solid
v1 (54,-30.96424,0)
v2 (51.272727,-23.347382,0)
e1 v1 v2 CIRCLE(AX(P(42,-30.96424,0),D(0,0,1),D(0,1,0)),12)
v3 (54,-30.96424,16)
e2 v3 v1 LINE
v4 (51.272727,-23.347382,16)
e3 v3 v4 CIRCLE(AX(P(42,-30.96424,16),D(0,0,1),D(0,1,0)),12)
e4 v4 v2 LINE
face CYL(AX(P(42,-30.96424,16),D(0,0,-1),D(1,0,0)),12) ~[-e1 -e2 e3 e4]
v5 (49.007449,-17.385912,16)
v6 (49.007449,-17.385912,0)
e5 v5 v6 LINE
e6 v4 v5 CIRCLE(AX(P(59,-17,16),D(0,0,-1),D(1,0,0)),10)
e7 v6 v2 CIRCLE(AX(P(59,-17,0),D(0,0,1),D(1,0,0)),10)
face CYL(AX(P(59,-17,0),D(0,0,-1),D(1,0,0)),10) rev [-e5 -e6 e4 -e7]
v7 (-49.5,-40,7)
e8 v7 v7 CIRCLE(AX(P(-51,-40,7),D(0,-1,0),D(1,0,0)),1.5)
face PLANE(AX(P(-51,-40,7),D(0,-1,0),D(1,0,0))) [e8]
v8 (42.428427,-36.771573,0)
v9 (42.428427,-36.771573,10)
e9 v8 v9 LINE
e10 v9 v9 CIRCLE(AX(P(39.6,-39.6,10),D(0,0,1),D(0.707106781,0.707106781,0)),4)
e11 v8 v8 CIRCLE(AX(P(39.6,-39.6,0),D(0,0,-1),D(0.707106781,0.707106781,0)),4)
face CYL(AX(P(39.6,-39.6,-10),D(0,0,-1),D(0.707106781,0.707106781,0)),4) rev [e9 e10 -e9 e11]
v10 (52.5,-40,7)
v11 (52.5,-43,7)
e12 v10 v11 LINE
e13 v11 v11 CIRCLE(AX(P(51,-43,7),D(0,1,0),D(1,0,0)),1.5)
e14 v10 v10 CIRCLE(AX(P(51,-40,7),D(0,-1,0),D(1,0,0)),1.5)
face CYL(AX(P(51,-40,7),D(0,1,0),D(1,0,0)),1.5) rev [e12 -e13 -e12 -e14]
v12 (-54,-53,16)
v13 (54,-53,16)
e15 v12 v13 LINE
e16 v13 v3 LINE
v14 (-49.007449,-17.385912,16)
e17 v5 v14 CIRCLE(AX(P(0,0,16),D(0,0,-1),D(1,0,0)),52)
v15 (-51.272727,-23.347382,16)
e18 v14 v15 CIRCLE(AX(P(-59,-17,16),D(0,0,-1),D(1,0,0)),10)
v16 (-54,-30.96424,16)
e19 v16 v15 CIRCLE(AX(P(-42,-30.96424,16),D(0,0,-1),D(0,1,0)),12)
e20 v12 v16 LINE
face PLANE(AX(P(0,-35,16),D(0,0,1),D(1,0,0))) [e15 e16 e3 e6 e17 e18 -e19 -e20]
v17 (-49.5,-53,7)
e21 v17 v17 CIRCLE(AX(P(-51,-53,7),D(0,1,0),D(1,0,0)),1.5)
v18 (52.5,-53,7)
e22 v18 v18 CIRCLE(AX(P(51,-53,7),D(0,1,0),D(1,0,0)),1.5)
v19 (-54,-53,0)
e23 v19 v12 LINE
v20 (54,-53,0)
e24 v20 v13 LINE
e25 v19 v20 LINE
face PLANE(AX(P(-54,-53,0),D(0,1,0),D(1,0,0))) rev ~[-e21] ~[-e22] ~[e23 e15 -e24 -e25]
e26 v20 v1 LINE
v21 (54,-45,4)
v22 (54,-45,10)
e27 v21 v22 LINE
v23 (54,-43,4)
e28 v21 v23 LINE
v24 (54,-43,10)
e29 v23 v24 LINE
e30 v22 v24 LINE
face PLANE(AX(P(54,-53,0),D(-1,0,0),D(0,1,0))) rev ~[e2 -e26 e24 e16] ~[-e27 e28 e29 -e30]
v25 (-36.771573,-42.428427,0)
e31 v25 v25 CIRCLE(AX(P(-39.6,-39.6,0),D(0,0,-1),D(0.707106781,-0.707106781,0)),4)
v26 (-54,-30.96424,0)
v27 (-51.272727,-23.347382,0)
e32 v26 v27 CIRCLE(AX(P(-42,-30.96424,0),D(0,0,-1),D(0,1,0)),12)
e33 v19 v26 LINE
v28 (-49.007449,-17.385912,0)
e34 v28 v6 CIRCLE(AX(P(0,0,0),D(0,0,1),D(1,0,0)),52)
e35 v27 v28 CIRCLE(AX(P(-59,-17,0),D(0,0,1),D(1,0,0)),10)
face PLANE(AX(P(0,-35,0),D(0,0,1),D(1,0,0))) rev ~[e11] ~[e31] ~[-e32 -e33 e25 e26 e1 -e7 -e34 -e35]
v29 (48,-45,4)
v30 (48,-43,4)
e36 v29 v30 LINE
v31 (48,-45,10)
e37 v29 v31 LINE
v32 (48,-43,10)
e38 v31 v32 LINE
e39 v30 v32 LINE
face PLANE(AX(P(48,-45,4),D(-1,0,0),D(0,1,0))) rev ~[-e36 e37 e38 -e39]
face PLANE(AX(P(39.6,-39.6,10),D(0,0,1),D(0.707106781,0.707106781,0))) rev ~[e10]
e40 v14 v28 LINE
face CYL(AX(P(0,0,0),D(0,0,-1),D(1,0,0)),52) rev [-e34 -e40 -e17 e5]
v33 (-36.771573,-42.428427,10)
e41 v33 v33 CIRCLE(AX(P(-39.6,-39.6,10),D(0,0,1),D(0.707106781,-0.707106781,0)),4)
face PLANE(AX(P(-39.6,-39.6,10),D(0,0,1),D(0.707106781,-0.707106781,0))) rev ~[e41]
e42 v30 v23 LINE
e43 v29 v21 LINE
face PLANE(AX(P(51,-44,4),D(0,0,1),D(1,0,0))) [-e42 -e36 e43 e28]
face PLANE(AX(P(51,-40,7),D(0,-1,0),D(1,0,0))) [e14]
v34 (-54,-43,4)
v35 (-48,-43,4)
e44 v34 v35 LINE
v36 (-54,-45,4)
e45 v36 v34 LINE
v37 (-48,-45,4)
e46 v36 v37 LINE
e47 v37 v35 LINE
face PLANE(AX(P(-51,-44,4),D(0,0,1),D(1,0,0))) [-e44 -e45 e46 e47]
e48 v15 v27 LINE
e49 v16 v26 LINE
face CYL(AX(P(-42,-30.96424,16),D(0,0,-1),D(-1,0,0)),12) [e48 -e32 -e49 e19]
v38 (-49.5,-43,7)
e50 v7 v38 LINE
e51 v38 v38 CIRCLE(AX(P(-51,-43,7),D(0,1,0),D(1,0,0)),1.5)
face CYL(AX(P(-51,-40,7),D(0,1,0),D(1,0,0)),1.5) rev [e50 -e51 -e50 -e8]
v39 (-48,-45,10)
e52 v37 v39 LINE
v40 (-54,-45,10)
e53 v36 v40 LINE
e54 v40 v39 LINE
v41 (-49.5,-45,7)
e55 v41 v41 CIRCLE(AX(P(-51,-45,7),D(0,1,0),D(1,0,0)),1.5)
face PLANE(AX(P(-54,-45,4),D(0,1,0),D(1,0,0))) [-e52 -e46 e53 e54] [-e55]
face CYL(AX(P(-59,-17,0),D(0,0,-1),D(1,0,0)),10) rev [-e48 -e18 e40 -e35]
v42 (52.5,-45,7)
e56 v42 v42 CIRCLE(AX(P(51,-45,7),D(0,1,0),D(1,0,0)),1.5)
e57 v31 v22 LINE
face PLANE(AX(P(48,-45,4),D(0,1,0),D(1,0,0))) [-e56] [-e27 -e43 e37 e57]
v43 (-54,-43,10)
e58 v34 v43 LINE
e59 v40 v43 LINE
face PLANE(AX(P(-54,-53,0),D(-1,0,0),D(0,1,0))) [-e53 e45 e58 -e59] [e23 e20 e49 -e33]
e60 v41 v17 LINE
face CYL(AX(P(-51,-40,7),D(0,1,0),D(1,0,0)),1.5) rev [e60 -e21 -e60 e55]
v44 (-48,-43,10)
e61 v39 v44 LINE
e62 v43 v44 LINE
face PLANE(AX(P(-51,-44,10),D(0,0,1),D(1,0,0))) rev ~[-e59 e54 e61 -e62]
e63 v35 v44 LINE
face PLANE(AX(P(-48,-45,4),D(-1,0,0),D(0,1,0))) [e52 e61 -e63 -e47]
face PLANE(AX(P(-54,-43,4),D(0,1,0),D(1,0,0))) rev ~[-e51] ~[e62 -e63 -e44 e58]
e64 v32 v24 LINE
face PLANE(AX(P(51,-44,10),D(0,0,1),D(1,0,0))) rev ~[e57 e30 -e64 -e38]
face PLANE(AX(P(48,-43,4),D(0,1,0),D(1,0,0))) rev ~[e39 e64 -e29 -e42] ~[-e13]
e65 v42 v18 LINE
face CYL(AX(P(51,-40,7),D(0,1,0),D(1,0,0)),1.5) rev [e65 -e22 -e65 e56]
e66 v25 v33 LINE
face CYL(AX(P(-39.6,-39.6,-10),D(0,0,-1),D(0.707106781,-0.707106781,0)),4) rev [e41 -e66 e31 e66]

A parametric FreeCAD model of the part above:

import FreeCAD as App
import Part
import Sketcher
from FreeCAD import Vector


def edges_at(feature, points):
    """Names of the edges that pass closest to the given points."""
    edges = feature.Shape.Edges
    near = lambda p: min(range(len(edges)), key=lambda i: edges[i].distToShape(Part.Vertex(*p))[0])
    return sorted({f"Edge{near(p) + 1}" for p in points})


def add_polygon(sketch, points):
    """Adds a closed chain of lines whose ends are joined by coincident constraints."""
    first, n = sketch.GeometryCount, len(points)
    for a, b in zip(points, points[1:] + points[:1]):
        sketch.addGeometry(Part.LineSegment(App.Vector(*a, 0), App.Vector(*b, 0)), False)
    for i in range(n):
        sketch.addConstraint(Sketcher.Constraint("Coincident", first + i, 2, first + (i + 1) % n, 1))

doc = App.newDocument("Part")
body = doc.addObject("PartDesign::Body", "Body")

# Sketch on XZ plane
sketch1 = doc.addObject("Sketcher::SketchObject", "Sketch")
body.addObject(sketch1)
sketch1.AttachmentSupport = (doc.XZ_Plane, [""])
sketch1.MapMode = "FlatFace"
sketch1.AttachmentOffset = App.Placement(Vector(0, 0, 40), App.Rotation())
sketch1.addGeometry(Part.Circle(Vector(20, -5, 0), Vector(0, 0, 1), 1.5), False)
sketch1.addConstraint(Sketcher.Constraint("Diameter", 0, 3.0))
sketch1.addConstraint(Sketcher.Constraint("DistanceX", -1, 1, 0, 3, 20.0))
sketch1.addConstraint(Sketcher.Constraint("DistanceY", 0, 3, -1, 1, 5.0))
pad1 = doc.addObject("PartDesign::Pad", "Pad")
body.addObject(pad1)
pad1.Profile = sketch1
pad1.Length = 20
body2 = doc.addObject("PartDesign::Body", "Body001")

# Sketch on XZ plane
sketch2 = doc.addObject("Sketcher::SketchObject", "Sketch001")
body2.addObject(sketch2)
sketch2.AttachmentSupport = (doc.getObject("XZ_Plane001"), [""])
sketch2.MapMode = "FlatFace"
sketch2.AttachmentOffset = App.Placement(Vector(0, 0, 40), App.Rotation())
sketch2.addGeometry(Part.Circle(Vector(51, 7, 0), Vector(0, 0, 1), 1.5), False)
sketch2.addConstraint(Sketcher.Constraint("Diameter", 0, 3.0))
sketch2.addConstraint(Sketcher.Constraint("DistanceX", -1, 1, 0, 3, 51.0))
sketch2.addConstraint(Sketcher.Constraint("DistanceY", -1, 1, 0, 3, 7.0))
pad2 = doc.addObject("PartDesign::Pad", "Pad001")
body2.addObject(pad2)
pad2.Profile = sketch2
pad2.Length = 20
body3 = doc.addObject("PartDesign::Body", "Body002")

# Sketch on XZ plane
sketch3 = doc.addObject("Sketcher::SketchObject", "Sketch002")
body3.addObject(sketch3)
sketch3.AttachmentSupport = (doc.getObject("XZ_Plane002"), [""])
sketch3.MapMode = "FlatFace"
sketch3.AttachmentOffset = App.Placement(Vector(0, 0, 40), App.Rotation())
sketch3.addGeometry(Part.Circle(Vector(-51, 7, 0), Vector(0, 0, 1), 1.5), False)
sketch3.addConstraint(Sketcher.Constraint("Diameter", 0, 3.0))
sketch3.addConstraint(Sketcher.Constraint("DistanceX", 0, 3, -1, 1, 51.0))
sketch3.addConstraint(Sketcher.Constraint("DistanceY", -1, 1, 0, 3, 7.0))
pad3 = doc.addObject("PartDesign::Pad", "Pad002")
body3.addObject(pad3)
pad3.Profile = sketch3
pad3.Length = 20
body4 = doc.addObject("PartDesign::Body", "Body003")
body4.AllowCompound = True

# Sketch on XZ plane
sketch4 = doc.addObject("Sketcher::SketchObject", "Sketch003")
body4.addObject(sketch4)
sketch4.AttachmentSupport = (doc.getObject("XZ_Plane003"), [""])
sketch4.MapMode = "FlatFace"
sketch4.AttachmentOffset = App.Placement(Vector(0, 0, 40), App.Rotation())
sketch4.addGeometry(Part.Circle(Vector(-20, -5, 0), Vector(0, 0, 1), 1.5), False)
sketch4.addConstraint(Sketcher.Constraint("Diameter", 0, 3.0))
sketch4.addConstraint(Sketcher.Constraint("DistanceX", 0, 3, -1, 1, 20.0))
sketch4.addConstraint(Sketcher.Constraint("DistanceY", 0, 3, -1, 1, 5.0))
pad4 = doc.addObject("PartDesign::Pad", "Pad003")
body4.addObject(pad4)
pad4.Profile = sketch4
pad4.Length = 20
doc.recompute()

boolean = doc.addObject("PartDesign::Boolean", "Boolean")
body4.addObject(boolean)
boolean.Type = "Fuse"
boolean.addObjects([body])
doc.recompute()

boolean2 = doc.addObject("PartDesign::Boolean", "Boolean001")
body4.addObject(boolean2)
boolean2.Type = "Fuse"
boolean2.addObjects([body2])
doc.recompute()

boolean3 = doc.addObject("PartDesign::Boolean", "Boolean002")
body4.addObject(boolean3)
boolean3.Type = "Fuse"
boolean3.addObjects([body3])
body5 = doc.addObject("PartDesign::Body", "Body004")

# Sketch on XY plane
sketch5 = doc.addObject("Sketcher::SketchObject", "Sketch004")
body5.addObject(sketch5)
sketch5.AttachmentSupport = (doc.getObject("XY_Plane004"), [""])
sketch5.MapMode = "FlatFace"
sketch5.AttachmentOffset = App.Placement(Vector(0, 0, -8), App.Rotation())
add_polygon(sketch5, [(17, -45), (17, -47), (23, -47), (23, -45)])  # lines 0-3
sketch5.addConstraint(Sketcher.Constraint("Vertical", 0))
sketch5.addConstraint(Sketcher.Constraint("Horizontal", 1))
sketch5.addConstraint(Sketcher.Constraint("Vertical", 2))
sketch5.addConstraint(Sketcher.Constraint("Horizontal", 3))
sketch5.addConstraint(Sketcher.Constraint("DistanceX", 1, 1, 1, 2, 6.0))
sketch5.addConstraint(Sketcher.Constraint("DistanceY", 0, 2, 0, 1, 2.0))
sketch5.addConstraint(Sketcher.Constraint("DistanceX", -1, 1, 0, 2, 17.0))
sketch5.addConstraint(Sketcher.Constraint("DistanceY", 0, 2, -1, 1, 47.0))
pad5 = doc.addObject("PartDesign::Pad", "Pad004")
body5.addObject(pad5)
pad5.Profile = sketch5
pad5.Length = 6
body6 = doc.addObject("PartDesign::Body", "Body005")

# Sketch on XY plane
sketch6 = doc.addObject("Sketcher::SketchObject", "Sketch005")
body6.addObject(sketch6)
sketch6.AttachmentSupport = (doc.getObject("XY_Plane005"), [""])
sketch6.MapMode = "FlatFace"
sketch6.AttachmentOffset = App.Placement(Vector(0, 0, 4), App.Rotation())
add_polygon(sketch6, [(48, -43), (48, -45), (54, -45), (54, -43)])  # lines 0-3
sketch6.addConstraint(Sketcher.Constraint("Vertical", 0))
sketch6.addConstraint(Sketcher.Constraint("Horizontal", 1))
sketch6.addConstraint(Sketcher.Constraint("Vertical", 2))
sketch6.addConstraint(Sketcher.Constraint("Horizontal", 3))
sketch6.addConstraint(Sketcher.Constraint("DistanceX", 1, 1, 1, 2, 6.0))
sketch6.addConstraint(Sketcher.Constraint("DistanceY", 0, 2, 0, 1, 2.0))
sketch6.addConstraint(Sketcher.Constraint("DistanceX", -1, 1, 0, 2, 48.0))
sketch6.addConstraint(Sketcher.Constraint("DistanceY", 0, 2, -1, 1, 45.0))
pad6 = doc.addObject("PartDesign::Pad", "Pad005")
body6.addObject(pad6)
pad6.Profile = sketch6
pad6.Length = 6
body7 = doc.addObject("PartDesign::Body", "Body006")

# Sketch on XY plane
sketch7 = doc.addObject("Sketcher::SketchObject", "Sketch006")
body7.addObject(sketch7)
sketch7.AttachmentSupport = (doc.getObject("XY_Plane006"), [""])
sketch7.MapMode = "FlatFace"
sketch7.AttachmentOffset = App.Placement(Vector(0, 0, 4), App.Rotation())
add_polygon(sketch7, [(-54, -43), (-54, -45), (-48, -45), (-48, -43)])  # lines 0-3
sketch7.addConstraint(Sketcher.Constraint("Vertical", 0))
sketch7.addConstraint(Sketcher.Constraint("Horizontal", 1))
sketch7.addConstraint(Sketcher.Constraint("Vertical", 2))
sketch7.addConstraint(Sketcher.Constraint("Horizontal", 3))
sketch7.addConstraint(Sketcher.Constraint("DistanceX", 1, 1, 1, 2, 6.0))
sketch7.addConstraint(Sketcher.Constraint("DistanceY", 0, 2, 0, 1, 2.0))
sketch7.addConstraint(Sketcher.Constraint("DistanceX", 0, 2, -1, 1, 54.0))
sketch7.addConstraint(Sketcher.Constraint("DistanceY", 0, 2, -1, 1, 45.0))
pad7 = doc.addObject("PartDesign::Pad", "Pad006")
body7.addObject(pad7)
pad7.Profile = sketch7
pad7.Length = 6
body8 = doc.addObject("PartDesign::Body", "Body007")
body8.AllowCompound = True

# Sketch on XY plane
sketch8 = doc.addObject("Sketcher::SketchObject", "Sketch007")
body8.addObject(sketch8)
sketch8.AttachmentSupport = (doc.getObject("XY_Plane007"), [""])
sketch8.MapMode = "FlatFace"
sketch8.AttachmentOffset = App.Placement(Vector(0, 0, -8), App.Rotation())
add_polygon(sketch8, [(-23, -45), (-23, -47), (-17, -47), (-17, -45)])  # lines 0-3
sketch8.addConstraint(Sketcher.Constraint("Vertical", 0))
sketch8.addConstraint(Sketcher.Constraint("Horizontal", 1))
sketch8.addConstraint(Sketcher.Constraint("Vertical", 2))
sketch8.addConstraint(Sketcher.Constraint("Horizontal", 3))
sketch8.addConstraint(Sketcher.Constraint("DistanceX", 1, 1, 1, 2, 6.0))
sketch8.addConstraint(Sketcher.Constraint("DistanceY", 0, 2, 0, 1, 2.0))
sketch8.addConstraint(Sketcher.Constraint("DistanceX", 0, 2, -1, 1, 23.0))
sketch8.addConstraint(Sketcher.Constraint("DistanceY", 0, 2, -1, 1, 47.0))
pad8 = doc.addObject("PartDesign::Pad", "Pad007")
body8.addObject(pad8)
pad8.Profile = sketch8
pad8.Length = 6
doc.recompute()

boolean4 = doc.addObject("PartDesign::Boolean", "Boolean003")
body8.addObject(boolean4)
boolean4.Type = "Fuse"
boolean4.addObjects([body5])
doc.recompute()

boolean5 = doc.addObject("PartDesign::Boolean", "Boolean004")
body8.addObject(boolean5)
boolean5.Type = "Fuse"
boolean5.addObjects([body6])
doc.recompute()

boolean6 = doc.addObject("PartDesign::Boolean", "Boolean005")
body8.addObject(boolean6)
boolean6.Type = "Fuse"
boolean6.addObjects([body7])
body9 = doc.addObject("PartDesign::Body", "Body008")

# Sketch on XY plane
sketch9 = doc.addObject("Sketcher::SketchObject", "Sketch008")
body9.addObject(sketch9)
sketch9.AttachmentSupport = (doc.getObject("XY_Plane008"), [""])
sketch9.MapMode = "FlatFace"
sketch9.addGeometry(Part.Circle(Vector(0, 0, 0), Vector(0, 0, 1), 4), False)
sketch9.addConstraint(Sketcher.Constraint("Coincident", 0, 3, -1, 1))
sketch9.addConstraint(Sketcher.Constraint("Diameter", 0, 8.0))
pad9 = doc.addObject("PartDesign::Pad", "Pad008")
body9.addObject(pad9)
pad9.Profile = sketch9
pad9.Length = 20
body10 = doc.addObject("PartDesign::Body", "Body009")
doc.recompute()

body9.Placement = App.Placement(Vector(39.6, -39.6, -10), App.Rotation(Vector(0, 0, 1), 45))
boolean7 = doc.addObject("PartDesign::Boolean", "Boolean006")
body10.addObject(boolean7)
boolean7.Type = "Fuse"
boolean7.addObjects([body9])
body11 = doc.addObject("PartDesign::Body", "Body010")

# Sketch on XY plane
sketch10 = doc.addObject("Sketcher::SketchObject", "Sketch009")
body11.addObject(sketch10)
sketch10.AttachmentSupport = (doc.getObject("XY_Plane010"), [""])
sketch10.MapMode = "FlatFace"
sketch10.addGeometry(Part.Circle(Vector(0, 0, 0), Vector(0, 0, 1), 4), False)
sketch10.addConstraint(Sketcher.Constraint("Coincident", 0, 3, -1, 1))
sketch10.addConstraint(Sketcher.Constraint("Diameter", 0, 8.0))
pad10 = doc.addObject("PartDesign::Pad", "Pad009")
body11.addObject(pad10)
pad10.Profile = sketch10
pad10.Length = 20
body12 = doc.addObject("PartDesign::Body", "Body011")
body12.AllowCompound = True
doc.recompute()

body11.Placement = App.Placement(Vector(-39.6, -39.6, -10), App.Rotation(Vector(0, 0, -1), 45))
boolean8 = doc.addObject("PartDesign::Boolean", "Boolean007")
body12.addObject(boolean8)
boolean8.Type = "Fuse"
boolean8.addObjects([body11])
doc.recompute()

boolean9 = doc.addObject("PartDesign::Boolean", "Boolean008")
body12.addObject(boolean9)
boolean9.Type = "Fuse"
boolean9.addObjects([body10])
body13 = doc.addObject("PartDesign::Body", "Body012")

# Sketch on XY plane
sketch11 = doc.addObject("Sketcher::SketchObject", "Sketch010")
body13.addObject(sketch11)
sketch11.AttachmentSupport = (doc.getObject("XY_Plane012"), [""])
sketch11.MapMode = "FlatFace"
sketch11.addGeometry(Part.Circle(Vector(-59, -17, 0), Vector(0, 0, 1), 10), False)
sketch11.addConstraint(Sketcher.Constraint("Diameter", 0, 20.0))
sketch11.addConstraint(Sketcher.Constraint("DistanceX", 0, 3, -1, 1, 59.0))
sketch11.addConstraint(Sketcher.Constraint("DistanceY", 0, 3, -1, 1, 17.0))
pad11 = doc.addObject("PartDesign::Pad", "Pad010")
body13.addObject(pad11)
pad11.Profile = sketch11
pad11.Length = 40
body14 = doc.addObject("PartDesign::Body", "Body013")
body14.AllowCompound = True

# Sketch on XY plane
sketch12 = doc.addObject("Sketcher::SketchObject", "Sketch011")
body14.addObject(sketch12)
sketch12.AttachmentSupport = (doc.getObject("XY_Plane013"), [""])
sketch12.MapMode = "FlatFace"
sketch12.addGeometry(Part.Circle(Vector(59, -17, 0), Vector(0, 0, 1), 10), False)
sketch12.addConstraint(Sketcher.Constraint("Diameter", 0, 20.0))
sketch12.addConstraint(Sketcher.Constraint("DistanceX", -1, 1, 0, 3, 59.0))
sketch12.addConstraint(Sketcher.Constraint("DistanceY", 0, 3, -1, 1, 17.0))
pad12 = doc.addObject("PartDesign::Pad", "Pad011")
body14.addObject(pad12)
pad12.Profile = sketch12
pad12.Length = 40
doc.recompute()

boolean10 = doc.addObject("PartDesign::Boolean", "Boolean009")
body14.addObject(boolean10)
boolean10.Type = "Fuse"
boolean10.addObjects([body13])
body15 = doc.addObject("PartDesign::Body", "Body014")

# Sketch on XY plane
sketch13 = doc.addObject("Sketcher::SketchObject", "Sketch012")
body15.addObject(sketch13)
sketch13.AttachmentSupport = (doc.getObject("XY_Plane014"), [""])
sketch13.MapMode = "FlatFace"
sketch13.AttachmentOffset = App.Placement(Vector(0, 0, 20), App.Rotation())
sketch13.addGeometry(Part.Circle(Vector(0, 0, 0), Vector(0, 0, 1), 52), False)
sketch13.addConstraint(Sketcher.Constraint("Coincident", 0, 3, -1, 1))
sketch13.addConstraint(Sketcher.Constraint("Diameter", 0, 104.0))
pad13 = doc.addObject("PartDesign::Pad", "Pad012")
body15.addObject(pad13)
pad13.Profile = sketch13
pad13.Length = 20
body16 = doc.addObject("PartDesign::Body", "Body015")

# Sketch on XY plane
sketch14 = doc.addObject("Sketcher::SketchObject", "Sketch013")
body16.addObject(sketch14)
sketch14.AttachmentSupport = (doc.getObject("XY_Plane015"), [""])
sketch14.MapMode = "FlatFace"
sketch14.AttachmentOffset = App.Placement(Vector(0, 0, 20), App.Rotation())
add_polygon(sketch14, [(-54, -17), (-54, -53), (54, -53), (54, -17)])  # lines 0-3
sketch14.addConstraint(Sketcher.Constraint("Vertical", 0))
sketch14.addConstraint(Sketcher.Constraint("Horizontal", 1))
sketch14.addConstraint(Sketcher.Constraint("Vertical", 2))
sketch14.addConstraint(Sketcher.Constraint("Horizontal", 3))
sketch14.addConstraint(Sketcher.Constraint("DistanceX", 1, 1, 1, 2, 108.0))
sketch14.addConstraint(Sketcher.Constraint("DistanceY", 0, 2, 0, 1, 36.0))
sketch14.addConstraint(Sketcher.Constraint("DistanceX", 0, 2, -1, 1, 54.0))
sketch14.addConstraint(Sketcher.Constraint("DistanceY", 0, 2, -1, 1, 53.0))
pad14 = doc.addObject("PartDesign::Pad", "Pad013")
body16.addObject(pad14)
pad14.Profile = sketch14
pad14.Length = 16
doc.recompute()

boolean11 = doc.addObject("PartDesign::Boolean", "Boolean010")
body16.addObject(boolean11)
boolean11.Type = "Cut"
boolean11.addObjects([body15])
body17 = doc.addObject("PartDesign::Body", "Body016")
doc.recompute()

body16.Placement = App.Placement(Vector(0, 0, -20), App.Rotation(Vector(0, 0, 1), 0))
boolean12 = doc.addObject("PartDesign::Boolean", "Boolean011")
body17.addObject(boolean12)
boolean12.Type = "Fuse"
boolean12.addObjects([body16])
doc.recompute()

boolean13 = doc.addObject("PartDesign::Boolean", "Boolean012")
body17.addObject(boolean13)
boolean13.Type = "Cut"
boolean13.addObjects([body14])
doc.recompute()

boolean14 = doc.addObject("PartDesign::Boolean", "Boolean013")
body17.addObject(boolean14)
boolean14.Type = "Cut"
boolean14.addObjects([body12])
doc.recompute()

boolean15 = doc.addObject("PartDesign::Boolean", "Boolean014")
body17.addObject(boolean15)
boolean15.Type = "Cut"
boolean15.addObjects([body8])
doc.recompute()

boolean16 = doc.addObject("PartDesign::Boolean", "Boolean015")
body17.addObject(boolean16)
boolean16.Type = "Cut"
boolean16.addObjects([body4])
doc.recompute()

fillet = doc.addObject("PartDesign::Fillet", "Fillet")
body17.addObject(fillet)
fillet.Base = (boolean16, edges_at(boolean16, [(-54, -25.66, 8), (54, -25.66, 8)]))
fillet.Radius = 12

doc.recompute()
